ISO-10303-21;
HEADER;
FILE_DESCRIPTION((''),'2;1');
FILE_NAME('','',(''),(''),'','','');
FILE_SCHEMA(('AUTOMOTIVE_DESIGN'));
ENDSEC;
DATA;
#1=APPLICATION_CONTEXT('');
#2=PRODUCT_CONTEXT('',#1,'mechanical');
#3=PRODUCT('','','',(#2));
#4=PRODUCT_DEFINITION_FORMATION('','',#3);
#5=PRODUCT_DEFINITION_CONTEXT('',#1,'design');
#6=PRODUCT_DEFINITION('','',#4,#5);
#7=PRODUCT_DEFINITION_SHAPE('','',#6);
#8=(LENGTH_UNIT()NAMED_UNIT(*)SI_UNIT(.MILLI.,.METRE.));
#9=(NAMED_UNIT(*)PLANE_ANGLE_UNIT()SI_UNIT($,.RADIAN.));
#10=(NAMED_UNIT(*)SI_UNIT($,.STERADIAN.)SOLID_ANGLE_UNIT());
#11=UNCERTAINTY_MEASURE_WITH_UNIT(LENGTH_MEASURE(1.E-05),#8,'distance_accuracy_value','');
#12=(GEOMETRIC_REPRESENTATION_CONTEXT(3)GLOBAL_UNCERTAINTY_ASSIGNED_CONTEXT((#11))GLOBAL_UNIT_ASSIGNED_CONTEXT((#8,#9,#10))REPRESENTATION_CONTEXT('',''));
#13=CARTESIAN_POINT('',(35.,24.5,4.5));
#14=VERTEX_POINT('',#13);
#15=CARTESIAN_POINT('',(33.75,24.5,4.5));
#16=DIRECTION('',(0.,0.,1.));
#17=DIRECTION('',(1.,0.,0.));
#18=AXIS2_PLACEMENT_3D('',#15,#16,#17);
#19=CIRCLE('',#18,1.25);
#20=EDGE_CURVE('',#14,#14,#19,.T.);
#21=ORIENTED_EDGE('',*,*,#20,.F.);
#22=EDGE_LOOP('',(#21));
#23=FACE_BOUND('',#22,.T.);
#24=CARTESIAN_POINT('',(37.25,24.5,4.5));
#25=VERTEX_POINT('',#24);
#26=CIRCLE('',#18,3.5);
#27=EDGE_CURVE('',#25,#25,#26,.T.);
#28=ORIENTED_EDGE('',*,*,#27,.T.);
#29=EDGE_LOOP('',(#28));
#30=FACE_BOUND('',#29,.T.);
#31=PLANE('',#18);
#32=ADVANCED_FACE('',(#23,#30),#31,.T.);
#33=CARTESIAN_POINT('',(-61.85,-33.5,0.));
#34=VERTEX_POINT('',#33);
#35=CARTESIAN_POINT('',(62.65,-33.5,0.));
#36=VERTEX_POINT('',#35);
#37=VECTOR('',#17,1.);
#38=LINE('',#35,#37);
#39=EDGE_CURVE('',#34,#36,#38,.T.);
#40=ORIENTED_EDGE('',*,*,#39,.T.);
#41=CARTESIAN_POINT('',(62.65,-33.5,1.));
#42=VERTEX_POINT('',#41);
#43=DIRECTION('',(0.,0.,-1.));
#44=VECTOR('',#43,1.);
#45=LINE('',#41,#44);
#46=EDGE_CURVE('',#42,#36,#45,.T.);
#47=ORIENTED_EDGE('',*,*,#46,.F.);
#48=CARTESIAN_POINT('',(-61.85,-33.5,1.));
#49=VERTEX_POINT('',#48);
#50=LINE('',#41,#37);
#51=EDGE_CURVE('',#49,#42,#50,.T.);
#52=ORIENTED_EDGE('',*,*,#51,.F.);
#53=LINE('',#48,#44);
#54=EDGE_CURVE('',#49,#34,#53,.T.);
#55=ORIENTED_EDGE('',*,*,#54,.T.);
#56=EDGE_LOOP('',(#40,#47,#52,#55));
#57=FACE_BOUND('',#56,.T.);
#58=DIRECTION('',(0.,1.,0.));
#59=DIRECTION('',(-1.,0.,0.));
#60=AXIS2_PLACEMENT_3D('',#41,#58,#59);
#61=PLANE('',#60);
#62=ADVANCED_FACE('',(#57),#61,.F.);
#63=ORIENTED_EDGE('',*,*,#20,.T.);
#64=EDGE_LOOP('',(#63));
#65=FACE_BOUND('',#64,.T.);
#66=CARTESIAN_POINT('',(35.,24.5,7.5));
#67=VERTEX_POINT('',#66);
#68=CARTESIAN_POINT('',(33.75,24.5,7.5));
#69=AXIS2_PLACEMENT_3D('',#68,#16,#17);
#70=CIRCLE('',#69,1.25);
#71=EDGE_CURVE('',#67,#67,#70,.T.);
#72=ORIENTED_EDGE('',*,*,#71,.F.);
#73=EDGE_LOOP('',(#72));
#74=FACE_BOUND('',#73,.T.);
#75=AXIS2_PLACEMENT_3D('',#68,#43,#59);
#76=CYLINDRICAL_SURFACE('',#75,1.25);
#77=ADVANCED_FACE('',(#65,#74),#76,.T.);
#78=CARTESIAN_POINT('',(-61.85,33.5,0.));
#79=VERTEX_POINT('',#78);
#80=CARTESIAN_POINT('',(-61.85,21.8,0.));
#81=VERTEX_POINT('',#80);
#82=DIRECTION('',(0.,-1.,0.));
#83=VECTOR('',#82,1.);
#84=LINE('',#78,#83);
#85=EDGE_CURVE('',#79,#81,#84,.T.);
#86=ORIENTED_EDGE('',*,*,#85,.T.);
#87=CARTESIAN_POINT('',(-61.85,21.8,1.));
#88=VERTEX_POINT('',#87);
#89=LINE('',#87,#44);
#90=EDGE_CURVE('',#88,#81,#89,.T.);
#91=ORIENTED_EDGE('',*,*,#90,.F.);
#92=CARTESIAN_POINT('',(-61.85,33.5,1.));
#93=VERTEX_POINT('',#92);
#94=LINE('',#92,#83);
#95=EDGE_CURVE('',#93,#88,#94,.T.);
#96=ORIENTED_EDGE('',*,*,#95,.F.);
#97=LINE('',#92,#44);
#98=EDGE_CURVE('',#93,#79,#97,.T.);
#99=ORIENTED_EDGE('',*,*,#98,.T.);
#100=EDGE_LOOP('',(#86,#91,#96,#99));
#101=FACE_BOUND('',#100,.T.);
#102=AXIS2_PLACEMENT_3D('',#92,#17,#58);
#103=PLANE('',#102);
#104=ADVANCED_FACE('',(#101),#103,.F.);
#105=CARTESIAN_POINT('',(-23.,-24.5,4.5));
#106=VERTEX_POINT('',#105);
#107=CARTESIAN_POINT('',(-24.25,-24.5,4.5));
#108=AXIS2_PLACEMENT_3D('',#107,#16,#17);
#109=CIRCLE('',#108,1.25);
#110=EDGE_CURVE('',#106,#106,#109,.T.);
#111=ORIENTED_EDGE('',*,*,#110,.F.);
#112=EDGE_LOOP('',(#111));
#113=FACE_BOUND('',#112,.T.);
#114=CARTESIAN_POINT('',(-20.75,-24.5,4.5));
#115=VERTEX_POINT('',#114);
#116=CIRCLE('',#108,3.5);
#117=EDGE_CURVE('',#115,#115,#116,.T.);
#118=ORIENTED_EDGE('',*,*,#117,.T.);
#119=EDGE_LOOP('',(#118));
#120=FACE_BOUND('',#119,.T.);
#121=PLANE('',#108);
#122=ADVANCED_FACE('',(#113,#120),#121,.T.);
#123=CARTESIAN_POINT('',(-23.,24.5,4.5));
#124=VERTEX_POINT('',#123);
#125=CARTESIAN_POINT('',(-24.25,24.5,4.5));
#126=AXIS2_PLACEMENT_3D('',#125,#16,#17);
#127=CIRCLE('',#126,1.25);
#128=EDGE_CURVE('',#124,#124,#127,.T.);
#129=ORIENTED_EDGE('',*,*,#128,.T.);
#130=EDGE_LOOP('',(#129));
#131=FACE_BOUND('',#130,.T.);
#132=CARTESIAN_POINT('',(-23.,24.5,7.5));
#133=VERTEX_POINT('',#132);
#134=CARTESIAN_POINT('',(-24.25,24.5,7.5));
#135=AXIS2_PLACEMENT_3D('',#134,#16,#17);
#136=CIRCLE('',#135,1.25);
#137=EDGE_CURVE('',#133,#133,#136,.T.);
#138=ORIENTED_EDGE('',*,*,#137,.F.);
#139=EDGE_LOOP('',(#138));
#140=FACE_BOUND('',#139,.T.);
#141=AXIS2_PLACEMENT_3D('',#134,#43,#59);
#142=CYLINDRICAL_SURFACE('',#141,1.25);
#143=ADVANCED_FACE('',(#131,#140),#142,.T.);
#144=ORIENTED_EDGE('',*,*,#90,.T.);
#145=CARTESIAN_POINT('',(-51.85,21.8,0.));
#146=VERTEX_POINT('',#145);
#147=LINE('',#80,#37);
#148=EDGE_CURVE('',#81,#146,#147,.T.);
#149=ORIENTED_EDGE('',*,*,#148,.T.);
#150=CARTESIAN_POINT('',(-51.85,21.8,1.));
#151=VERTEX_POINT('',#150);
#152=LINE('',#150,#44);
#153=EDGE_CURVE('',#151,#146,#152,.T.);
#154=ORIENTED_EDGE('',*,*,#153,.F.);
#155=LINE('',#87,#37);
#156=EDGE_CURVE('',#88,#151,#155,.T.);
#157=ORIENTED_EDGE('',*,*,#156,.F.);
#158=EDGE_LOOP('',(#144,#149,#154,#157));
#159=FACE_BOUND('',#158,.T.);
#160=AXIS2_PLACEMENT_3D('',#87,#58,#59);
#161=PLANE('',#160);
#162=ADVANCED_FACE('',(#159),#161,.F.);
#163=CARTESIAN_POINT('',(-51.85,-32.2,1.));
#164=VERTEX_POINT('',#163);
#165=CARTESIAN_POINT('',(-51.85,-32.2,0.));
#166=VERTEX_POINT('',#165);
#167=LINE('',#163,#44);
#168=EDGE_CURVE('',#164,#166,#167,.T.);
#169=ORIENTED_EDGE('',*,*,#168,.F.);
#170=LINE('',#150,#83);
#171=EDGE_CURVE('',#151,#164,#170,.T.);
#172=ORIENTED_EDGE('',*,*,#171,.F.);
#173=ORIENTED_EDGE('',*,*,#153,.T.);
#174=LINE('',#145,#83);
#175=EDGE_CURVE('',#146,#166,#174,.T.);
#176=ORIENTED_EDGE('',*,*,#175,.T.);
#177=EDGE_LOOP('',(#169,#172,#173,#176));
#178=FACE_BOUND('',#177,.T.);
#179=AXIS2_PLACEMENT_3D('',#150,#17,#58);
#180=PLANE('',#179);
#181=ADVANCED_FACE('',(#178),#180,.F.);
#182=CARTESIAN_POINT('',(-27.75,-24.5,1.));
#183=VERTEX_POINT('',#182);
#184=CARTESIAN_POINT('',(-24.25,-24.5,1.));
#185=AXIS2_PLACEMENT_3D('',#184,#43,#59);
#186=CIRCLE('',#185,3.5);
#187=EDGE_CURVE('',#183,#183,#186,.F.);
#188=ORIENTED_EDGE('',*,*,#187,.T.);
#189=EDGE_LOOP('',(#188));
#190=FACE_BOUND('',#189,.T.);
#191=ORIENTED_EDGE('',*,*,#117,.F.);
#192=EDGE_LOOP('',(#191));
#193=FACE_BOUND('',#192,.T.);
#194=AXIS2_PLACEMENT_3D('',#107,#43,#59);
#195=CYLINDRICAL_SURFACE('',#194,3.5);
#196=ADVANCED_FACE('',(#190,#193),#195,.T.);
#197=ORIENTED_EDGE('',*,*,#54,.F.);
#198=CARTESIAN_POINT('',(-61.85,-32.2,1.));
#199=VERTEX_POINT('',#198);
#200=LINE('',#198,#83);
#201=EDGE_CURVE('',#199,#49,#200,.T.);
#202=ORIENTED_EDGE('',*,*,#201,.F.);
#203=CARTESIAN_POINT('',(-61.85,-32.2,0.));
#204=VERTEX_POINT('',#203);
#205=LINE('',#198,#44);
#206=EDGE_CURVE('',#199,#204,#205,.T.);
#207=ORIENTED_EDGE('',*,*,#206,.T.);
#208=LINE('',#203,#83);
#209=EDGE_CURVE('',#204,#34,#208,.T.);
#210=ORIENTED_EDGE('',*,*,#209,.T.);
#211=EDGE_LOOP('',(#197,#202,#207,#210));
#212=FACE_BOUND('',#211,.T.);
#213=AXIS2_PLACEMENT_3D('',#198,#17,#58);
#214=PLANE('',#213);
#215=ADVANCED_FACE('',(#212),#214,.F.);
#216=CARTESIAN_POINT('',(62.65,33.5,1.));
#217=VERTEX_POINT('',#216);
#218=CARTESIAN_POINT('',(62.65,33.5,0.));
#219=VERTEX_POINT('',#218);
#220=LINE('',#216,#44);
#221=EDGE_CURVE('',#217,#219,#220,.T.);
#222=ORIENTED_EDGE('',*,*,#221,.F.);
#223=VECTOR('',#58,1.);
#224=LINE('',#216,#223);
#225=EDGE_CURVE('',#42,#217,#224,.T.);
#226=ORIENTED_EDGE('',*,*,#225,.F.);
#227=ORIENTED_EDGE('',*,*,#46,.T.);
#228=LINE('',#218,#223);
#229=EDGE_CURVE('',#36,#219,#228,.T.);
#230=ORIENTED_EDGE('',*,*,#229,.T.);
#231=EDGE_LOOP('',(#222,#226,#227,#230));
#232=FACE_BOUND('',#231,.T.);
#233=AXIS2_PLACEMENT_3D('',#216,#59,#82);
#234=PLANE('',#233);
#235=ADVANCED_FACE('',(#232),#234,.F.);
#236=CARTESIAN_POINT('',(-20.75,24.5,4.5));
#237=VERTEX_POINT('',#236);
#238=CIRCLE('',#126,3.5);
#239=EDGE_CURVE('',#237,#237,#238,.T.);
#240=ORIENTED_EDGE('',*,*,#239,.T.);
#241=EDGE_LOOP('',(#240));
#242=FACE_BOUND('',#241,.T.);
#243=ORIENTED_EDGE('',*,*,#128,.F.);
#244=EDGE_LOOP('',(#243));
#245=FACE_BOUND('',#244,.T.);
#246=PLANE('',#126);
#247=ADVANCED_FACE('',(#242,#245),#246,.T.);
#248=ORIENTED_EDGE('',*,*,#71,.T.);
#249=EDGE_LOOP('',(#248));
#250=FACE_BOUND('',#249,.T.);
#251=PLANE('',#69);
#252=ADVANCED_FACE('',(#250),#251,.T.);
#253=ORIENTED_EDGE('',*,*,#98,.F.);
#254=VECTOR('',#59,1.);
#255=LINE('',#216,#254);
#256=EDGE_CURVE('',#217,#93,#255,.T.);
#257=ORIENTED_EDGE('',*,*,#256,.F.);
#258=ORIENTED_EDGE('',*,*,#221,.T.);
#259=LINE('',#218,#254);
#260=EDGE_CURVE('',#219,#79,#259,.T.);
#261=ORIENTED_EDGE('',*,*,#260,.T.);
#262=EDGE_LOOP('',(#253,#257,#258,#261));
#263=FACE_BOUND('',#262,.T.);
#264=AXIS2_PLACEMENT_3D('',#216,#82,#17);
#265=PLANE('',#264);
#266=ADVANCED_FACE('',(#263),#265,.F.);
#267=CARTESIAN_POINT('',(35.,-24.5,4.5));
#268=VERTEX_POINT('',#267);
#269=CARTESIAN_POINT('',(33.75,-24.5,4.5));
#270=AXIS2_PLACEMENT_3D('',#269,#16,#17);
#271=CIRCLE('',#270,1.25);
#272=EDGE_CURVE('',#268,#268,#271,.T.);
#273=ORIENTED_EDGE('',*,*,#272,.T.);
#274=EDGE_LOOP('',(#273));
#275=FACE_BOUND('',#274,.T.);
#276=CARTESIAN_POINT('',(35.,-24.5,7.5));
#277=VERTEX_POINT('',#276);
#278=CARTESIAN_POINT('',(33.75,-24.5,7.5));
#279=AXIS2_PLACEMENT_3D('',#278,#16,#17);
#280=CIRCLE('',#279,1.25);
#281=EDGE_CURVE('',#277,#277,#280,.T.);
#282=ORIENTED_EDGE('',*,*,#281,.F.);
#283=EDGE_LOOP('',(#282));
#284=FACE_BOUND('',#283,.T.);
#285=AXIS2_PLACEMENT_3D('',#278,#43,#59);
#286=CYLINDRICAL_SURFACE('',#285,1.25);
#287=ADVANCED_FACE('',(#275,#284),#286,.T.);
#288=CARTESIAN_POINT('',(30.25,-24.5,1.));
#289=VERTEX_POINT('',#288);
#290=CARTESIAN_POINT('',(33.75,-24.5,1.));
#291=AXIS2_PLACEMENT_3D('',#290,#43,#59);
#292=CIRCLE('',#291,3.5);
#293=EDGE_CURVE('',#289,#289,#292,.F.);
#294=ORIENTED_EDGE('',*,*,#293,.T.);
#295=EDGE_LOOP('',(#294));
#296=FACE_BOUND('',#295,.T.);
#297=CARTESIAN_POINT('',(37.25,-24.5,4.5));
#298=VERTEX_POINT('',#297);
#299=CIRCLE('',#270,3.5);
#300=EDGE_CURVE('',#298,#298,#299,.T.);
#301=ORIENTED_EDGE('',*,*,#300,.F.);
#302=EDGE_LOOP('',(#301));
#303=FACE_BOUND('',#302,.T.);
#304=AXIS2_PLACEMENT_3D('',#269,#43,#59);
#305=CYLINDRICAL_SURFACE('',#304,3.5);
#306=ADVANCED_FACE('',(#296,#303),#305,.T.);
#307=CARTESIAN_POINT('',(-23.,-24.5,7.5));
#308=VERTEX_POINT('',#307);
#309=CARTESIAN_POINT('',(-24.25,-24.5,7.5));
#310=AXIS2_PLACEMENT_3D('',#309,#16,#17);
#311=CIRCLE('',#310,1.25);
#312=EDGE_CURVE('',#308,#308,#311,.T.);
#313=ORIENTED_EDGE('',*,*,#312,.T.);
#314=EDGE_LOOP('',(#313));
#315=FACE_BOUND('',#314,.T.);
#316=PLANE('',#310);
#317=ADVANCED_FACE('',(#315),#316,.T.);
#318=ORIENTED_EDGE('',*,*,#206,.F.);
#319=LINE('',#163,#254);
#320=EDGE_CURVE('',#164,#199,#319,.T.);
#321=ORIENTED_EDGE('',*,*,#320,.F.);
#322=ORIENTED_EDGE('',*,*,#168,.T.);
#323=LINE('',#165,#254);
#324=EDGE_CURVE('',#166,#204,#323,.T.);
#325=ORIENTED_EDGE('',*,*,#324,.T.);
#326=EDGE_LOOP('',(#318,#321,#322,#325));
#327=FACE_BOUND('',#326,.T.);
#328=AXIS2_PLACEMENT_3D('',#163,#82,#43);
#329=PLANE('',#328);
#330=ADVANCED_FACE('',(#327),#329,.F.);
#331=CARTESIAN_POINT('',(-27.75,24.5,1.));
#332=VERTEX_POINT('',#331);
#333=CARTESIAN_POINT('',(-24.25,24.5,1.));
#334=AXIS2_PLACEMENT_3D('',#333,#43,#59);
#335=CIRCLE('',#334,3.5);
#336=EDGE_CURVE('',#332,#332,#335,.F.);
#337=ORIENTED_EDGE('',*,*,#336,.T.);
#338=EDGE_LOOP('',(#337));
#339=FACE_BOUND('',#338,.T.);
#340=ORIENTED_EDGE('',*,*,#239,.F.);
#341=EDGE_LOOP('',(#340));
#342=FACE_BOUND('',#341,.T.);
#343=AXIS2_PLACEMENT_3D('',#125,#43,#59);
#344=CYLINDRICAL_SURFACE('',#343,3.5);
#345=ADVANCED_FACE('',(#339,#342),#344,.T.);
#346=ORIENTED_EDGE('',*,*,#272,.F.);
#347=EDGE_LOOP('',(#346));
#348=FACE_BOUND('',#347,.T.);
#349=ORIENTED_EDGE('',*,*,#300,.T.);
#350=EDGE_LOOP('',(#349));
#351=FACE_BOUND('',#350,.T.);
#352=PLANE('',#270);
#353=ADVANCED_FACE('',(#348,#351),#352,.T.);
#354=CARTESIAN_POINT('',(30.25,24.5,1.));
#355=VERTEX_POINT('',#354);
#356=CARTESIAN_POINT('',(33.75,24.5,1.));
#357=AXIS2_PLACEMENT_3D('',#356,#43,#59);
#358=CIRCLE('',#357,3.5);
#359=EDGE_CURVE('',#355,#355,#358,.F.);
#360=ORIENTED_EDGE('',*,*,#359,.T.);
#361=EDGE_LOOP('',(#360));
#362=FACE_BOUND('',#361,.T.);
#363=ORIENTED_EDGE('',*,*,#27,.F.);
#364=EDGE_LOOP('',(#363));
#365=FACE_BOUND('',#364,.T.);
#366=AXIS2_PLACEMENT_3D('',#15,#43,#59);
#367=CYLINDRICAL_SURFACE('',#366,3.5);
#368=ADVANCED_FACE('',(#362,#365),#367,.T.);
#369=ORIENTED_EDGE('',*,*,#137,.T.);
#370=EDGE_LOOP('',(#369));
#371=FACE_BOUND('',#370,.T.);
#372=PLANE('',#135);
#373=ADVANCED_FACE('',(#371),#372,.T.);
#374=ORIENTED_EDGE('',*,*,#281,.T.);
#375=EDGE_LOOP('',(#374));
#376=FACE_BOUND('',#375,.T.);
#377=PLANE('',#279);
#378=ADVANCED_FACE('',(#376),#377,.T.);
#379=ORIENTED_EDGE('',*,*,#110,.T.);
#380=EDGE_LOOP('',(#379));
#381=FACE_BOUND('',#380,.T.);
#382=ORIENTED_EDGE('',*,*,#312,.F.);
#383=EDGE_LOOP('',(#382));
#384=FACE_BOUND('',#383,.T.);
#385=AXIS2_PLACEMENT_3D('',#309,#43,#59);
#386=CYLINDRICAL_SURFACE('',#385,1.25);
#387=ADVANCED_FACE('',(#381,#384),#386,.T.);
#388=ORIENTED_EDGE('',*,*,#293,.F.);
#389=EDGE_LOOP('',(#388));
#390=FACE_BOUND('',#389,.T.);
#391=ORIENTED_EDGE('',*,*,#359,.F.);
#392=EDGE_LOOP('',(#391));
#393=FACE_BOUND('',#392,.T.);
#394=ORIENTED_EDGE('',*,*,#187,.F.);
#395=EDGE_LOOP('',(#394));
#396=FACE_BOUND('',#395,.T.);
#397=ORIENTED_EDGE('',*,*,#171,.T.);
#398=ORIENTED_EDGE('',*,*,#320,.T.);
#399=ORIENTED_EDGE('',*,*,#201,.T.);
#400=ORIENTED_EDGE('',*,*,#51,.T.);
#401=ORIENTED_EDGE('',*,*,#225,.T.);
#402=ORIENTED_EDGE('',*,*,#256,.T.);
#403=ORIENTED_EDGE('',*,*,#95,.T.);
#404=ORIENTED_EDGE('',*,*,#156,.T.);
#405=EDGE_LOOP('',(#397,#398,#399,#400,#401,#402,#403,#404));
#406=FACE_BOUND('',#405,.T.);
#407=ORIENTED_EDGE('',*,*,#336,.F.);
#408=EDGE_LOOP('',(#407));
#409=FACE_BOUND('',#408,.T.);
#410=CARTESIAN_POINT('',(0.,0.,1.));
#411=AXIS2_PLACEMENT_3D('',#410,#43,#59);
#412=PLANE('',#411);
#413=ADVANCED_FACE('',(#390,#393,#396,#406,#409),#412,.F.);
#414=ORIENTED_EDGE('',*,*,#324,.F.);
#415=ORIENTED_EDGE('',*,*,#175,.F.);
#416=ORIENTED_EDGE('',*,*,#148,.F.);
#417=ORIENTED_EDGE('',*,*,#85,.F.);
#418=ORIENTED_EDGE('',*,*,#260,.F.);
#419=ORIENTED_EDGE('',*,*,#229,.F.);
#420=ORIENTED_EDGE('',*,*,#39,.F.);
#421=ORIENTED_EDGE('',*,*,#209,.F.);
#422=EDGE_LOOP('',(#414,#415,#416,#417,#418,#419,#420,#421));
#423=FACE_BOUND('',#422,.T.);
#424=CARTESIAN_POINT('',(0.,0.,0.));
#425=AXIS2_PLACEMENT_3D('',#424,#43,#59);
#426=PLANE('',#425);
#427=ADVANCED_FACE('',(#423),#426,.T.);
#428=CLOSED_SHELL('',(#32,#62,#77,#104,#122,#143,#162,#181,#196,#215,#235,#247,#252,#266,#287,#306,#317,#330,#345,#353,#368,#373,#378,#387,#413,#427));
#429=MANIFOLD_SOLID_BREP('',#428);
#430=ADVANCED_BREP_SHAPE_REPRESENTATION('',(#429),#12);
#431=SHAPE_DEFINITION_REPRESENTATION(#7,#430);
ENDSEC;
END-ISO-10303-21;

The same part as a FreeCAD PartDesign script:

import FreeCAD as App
import Part
import Sketcher

V = App.Vector
Q = App.Units.Quantity


def add_polygon(sketch, points):
    """Adds a closed chain of lines whose ends are joined by coincident constraints."""
    first, n = sketch.GeometryCount, len(points)
    for a, b in zip(points, points[1:] + points[:1]):
        sketch.addGeometry(Part.LineSegment(App.Vector(*a, 0), App.Vector(*b, 0)), False)
    for i in range(n):
        sketch.addConstraint(Sketcher.Constraint("Coincident", first + i, 2, first + (i + 1) % n, 1))

doc = App.newDocument("Part")
body = doc.addObject("PartDesign::Body", "Body")

# Sketch on XY plane
sketch1 = body.newObject("Sketcher::SketchObject", "Sketch")
sketch1.AttachmentSupport = (doc.getObject("XY_Plane"), [""])
sketch1.MapMode = "FlatFace"
add_polygon(sketch1, [(-61.9, 33.5), (-61.9, 21.8), (-51.9, 21.8), (-51.9, -32.2), (-61.9, -32.2), (-61.9, -33.5), (62.6, -33.5), (62.6, 33.5)])  # lines 0-7
sketch1.addConstraint([
    Sketcher.Constraint("Vertical", 0),
    Sketcher.Constraint("Horizontal", 1),
    Sketcher.Constraint("Vertical", 2),
    Sketcher.Constraint("Horizontal", 3),
    Sketcher.Constraint("Vertical", 4),
    Sketcher.Constraint("Horizontal", 5),
    Sketcher.Constraint("Vertical", 6),
    Sketcher.Constraint("Horizontal", 7),
    Sketcher.Constraint("Symmetric", 4, 2, 7, 2, -1),
    Sketcher.Constraint("DistanceX", 1, 1, 1, 2, Q("10 mm")),
    Sketcher.Constraint("DistanceY", 2, 2, 2, 1, Q("54 mm")),
    Sketcher.Constraint("DistanceY", 6, 1, 6, 2, Q("67 mm")),
    Sketcher.Constraint("DistanceX", 5, 1, 5, 2, Q("124.5 mm")),
    Sketcher.Constraint("DistanceY", 0, 2, 0, 1, Q("11.7 mm")),
    Sketcher.Constraint("DistanceX", 0, 2, -1, 1, Q("61.85 mm")),
])
pad1 = body.newObject("PartDesign::Pad", "Pad")
pad1.Profile = sketch1
pad1.Length = 1

# Sketch on XY plane
sketch2 = body.newObject("Sketcher::SketchObject", "Sketch001")
sketch2.AttachmentSupport = (doc.getObject("XY_Plane"), [""])
sketch2.MapMode = "FlatFace"
sketch2.AttachmentOffset = App.Placement(V(0, 0, 1), App.Rotation())
sketch2.addGeometry([
    Part.Circle(V(-24.2, 24.5, 0), V(0, 0, 1), 3.5),
    Part.Circle(V(33.8, 24.5, 0), V(0, 0, 1), 3.5),
    Part.Circle(V(33.8, -24.5, 0), V(0, 0, 1), 3.5),
    Part.Circle(V(-24.2, -24.5, 0), V(0, 0, 1), 3.5),
], False)
sketch2.addConstraint([
    Sketcher.Constraint("Equal", 0, 1),
    Sketcher.Constraint("Equal", 1, 2),
    Sketcher.Constraint("Equal", 2, 3),
    Sketcher.Constraint("Symmetric", 1, 3, 2, 3, -1),
    Sketcher.Constraint("Symmetric", 0, 3, 3, 3, -1),
    Sketcher.Constraint("Horizontal", 0, 3, 1, 3),
    Sketcher.Constraint("Diameter", 0, Q("7 mm")),
    Sketcher.Constraint("DistanceX", 0, 3, 1, 3, Q("58 mm")),
    Sketcher.Constraint("DistanceY", 2, 3, 1, 3, Q("49 mm")),
    Sketcher.Constraint("DistanceX", 0, 3, -1, 1, Q("24.25 mm")),
])
pad2 = body.newObject("PartDesign::Pad", "Pad001")
pad2.Profile = sketch2
pad2.Length = 3.5

# Sketch on XY plane
sketch3 = body.newObject("Sketcher::SketchObject", "Sketch002")
sketch3.AttachmentSupport = (doc.getObject("XY_Plane"), [""])
sketch3.MapMode = "FlatFace"
sketch3.AttachmentOffset = App.Placement(V(0, 0, 4.5), App.Rotation())
sketch3.addGeometry([
    Part.Circle(V(-24.2, 24.5, 0), V(0, 0, 1), 1.2),
    Part.Circle(V(33.8, 24.5, 0), V(0, 0, 1), 1.2),
    Part.Circle(V(33.8, -24.5, 0), V(0, 0, 1), 1.2),
    Part.Circle(V(-24.2, -24.5, 0), V(0, 0, 1), 1.2),
], False)
sketch3.addConstraint([
    Sketcher.Constraint("Equal", 0, 1),
    Sketcher.Constraint("Equal", 1, 2),
    Sketcher.Constraint("Equal", 2, 3),
    Sketcher.Constraint("Symmetric", 1, 3, 2, 3, -1),
    Sketcher.Constraint("Symmetric", 0, 3, 3, 3, -1),
    Sketcher.Constraint("Horizontal", 0, 3, 1, 3),
    Sketcher.Constraint("Diameter", 0, Q("2.5 mm")),
    Sketcher.Constraint("DistanceX", 0, 3, 1, 3, Q("58 mm")),
    Sketcher.Constraint("DistanceY", 2, 3, 1, 3, Q("49 mm")),
    Sketcher.Constraint("DistanceX", 0, 3, -1, 1, Q("24.25 mm")),
])
pad3 = body.newObject("PartDesign::Pad", "Pad002")
pad3.Profile = sketch3
pad3.Length = 3

doc.recompute()
